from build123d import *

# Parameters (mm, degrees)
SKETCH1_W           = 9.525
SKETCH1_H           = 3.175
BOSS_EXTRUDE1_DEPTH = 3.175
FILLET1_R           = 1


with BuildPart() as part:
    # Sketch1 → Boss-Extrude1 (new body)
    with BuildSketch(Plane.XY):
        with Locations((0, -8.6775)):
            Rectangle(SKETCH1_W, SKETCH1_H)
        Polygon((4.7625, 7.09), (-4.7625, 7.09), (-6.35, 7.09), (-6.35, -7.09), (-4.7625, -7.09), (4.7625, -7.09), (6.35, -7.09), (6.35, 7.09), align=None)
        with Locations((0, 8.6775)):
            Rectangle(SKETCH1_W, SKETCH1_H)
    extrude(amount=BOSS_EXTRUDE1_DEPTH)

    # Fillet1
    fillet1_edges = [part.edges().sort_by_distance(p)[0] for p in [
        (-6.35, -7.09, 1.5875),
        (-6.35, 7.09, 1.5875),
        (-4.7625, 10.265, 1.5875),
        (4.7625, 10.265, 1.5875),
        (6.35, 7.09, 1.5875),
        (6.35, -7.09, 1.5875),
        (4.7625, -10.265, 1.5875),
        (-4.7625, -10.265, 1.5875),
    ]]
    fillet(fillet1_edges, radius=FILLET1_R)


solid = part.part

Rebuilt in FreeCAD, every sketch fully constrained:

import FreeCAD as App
import Part
import Sketcher
from FreeCAD import Vector
Q = App.Units.Quantity


def edges_at(feature, points):
    """Names of the edges that pass closest to the given points."""
    edges = feature.Shape.Edges
    near = lambda p: min(range(len(edges)), key=lambda i: edges[i].distToShape(Part.Vertex(*p))[0])
    return sorted({f"Edge{near(p) + 1}" for p in points})


def add_polygon(sketch, points):
    """Adds a closed chain of lines whose ends are joined by coincident constraints."""
    first, n = sketch.GeometryCount, len(points)
    for a, b in zip(points, points[1:] + points[:1]):
        sketch.addGeometry(Part.LineSegment(App.Vector(*a, 0), App.Vector(*b, 0)), False)
    for i in range(n):
        sketch.addConstraint(Sketcher.Constraint("Coincident", first + i, 2, first + (i + 1) % n, 1))

doc = App.newDocument("Part")
body = doc.addObject("PartDesign::Body", "Body")

sketch1 = body.newObject("Sketcher::SketchObject", "Sketch")
sketch1.AttachmentSupport = (doc.getObject("XY_Plane"), [""])
sketch1.MapMode = "FlatFace"
add_polygon(sketch1, [(-4.7625, -7.09), (-4.7625, -10.265), (4.7625, -10.265), (4.7625, -7.09), (6.35, -7.09), (6.35, 7.09), (4.7625, 7.09), (4.7625, 10.265), (-4.7625, 10.265), (-4.7625, 7.09), (-6.35, 7.09), (-6.35, -7.09)])
sketch1.addConstraint(Sketcher.Constraint("Vertical", 0))
sketch1.addConstraint(Sketcher.Constraint("Horizontal", 1))
sketch1.addConstraint(Sketcher.Constraint("Vertical", 2))
sketch1.addConstraint(Sketcher.Constraint("Horizontal", 3))
sketch1.addConstraint(Sketcher.Constraint("Vertical", 4))
sketch1.addConstraint(Sketcher.Constraint("Horizontal", 5))
sketch1.addConstraint(Sketcher.Constraint("Vertical", 6))
sketch1.addConstraint(Sketcher.Constraint("Horizontal", 7))
sketch1.addConstraint(Sketcher.Constraint("Vertical", 8))
sketch1.addConstraint(Sketcher.Constraint("Horizontal", 9))
sketch1.addConstraint(Sketcher.Constraint("Vertical", 10))
sketch1.addConstraint(Sketcher.Constraint("Horizontal", 11))
sketch1.addConstraint(Sketcher.Constraint("Symmetric", 0, 2, 6, 2, -1, 1))
sketch1.addConstraint(Sketcher.Constraint("Symmetric", 2, 2, 8, 2, -1, 1))
sketch1.addConstraint(Sketcher.Constraint("Symmetric", 4, 2, 10, 2, -1, 1))
sketch1.addConstraint(Sketcher.Constraint("Symmetric", 5, 2, 8, 2, -2))
sketch1.addConstraint(Sketcher.Constraint("DistanceX", 9, 2, 4, 2, Q("0.5 in")))
sketch1.addConstraint(Sketcher.Constraint("DistanceX", 1, 1, 1, 2, Q("0.375 in")))
sketch1.addConstraint(Sketcher.Constraint("DistanceY", 0, 2, 0, 1, Q("0.125 in")))
sketch1.addConstraint(Sketcher.Constraint("DistanceY", 4, 1, 4, 2, 14.18))
pad1 = body.newObject("PartDesign::Pad", "Pad")
pad1.Profile = sketch1
pad1.Length = Q("0.125 in")
doc.recompute()

fillet = body.newObject("PartDesign::Fillet", "Fillet")
fillet.Base = (pad1, edges_at(pad1, [
    (-6.35, -7.09, 1.587),
    (-6.35, 7.09, 1.587),
    (-4.763, 10.265, 1.587),
    (4.763, 10.265, 1.587),
    (6.35, 7.09, 1.587),
    (6.35, -7.09, 1.587),
    (4.763, -10.265, 1.587),
    (-4.763, -10.265, 1.587),
]))
fillet.Radius = 1

doc.recompute()
